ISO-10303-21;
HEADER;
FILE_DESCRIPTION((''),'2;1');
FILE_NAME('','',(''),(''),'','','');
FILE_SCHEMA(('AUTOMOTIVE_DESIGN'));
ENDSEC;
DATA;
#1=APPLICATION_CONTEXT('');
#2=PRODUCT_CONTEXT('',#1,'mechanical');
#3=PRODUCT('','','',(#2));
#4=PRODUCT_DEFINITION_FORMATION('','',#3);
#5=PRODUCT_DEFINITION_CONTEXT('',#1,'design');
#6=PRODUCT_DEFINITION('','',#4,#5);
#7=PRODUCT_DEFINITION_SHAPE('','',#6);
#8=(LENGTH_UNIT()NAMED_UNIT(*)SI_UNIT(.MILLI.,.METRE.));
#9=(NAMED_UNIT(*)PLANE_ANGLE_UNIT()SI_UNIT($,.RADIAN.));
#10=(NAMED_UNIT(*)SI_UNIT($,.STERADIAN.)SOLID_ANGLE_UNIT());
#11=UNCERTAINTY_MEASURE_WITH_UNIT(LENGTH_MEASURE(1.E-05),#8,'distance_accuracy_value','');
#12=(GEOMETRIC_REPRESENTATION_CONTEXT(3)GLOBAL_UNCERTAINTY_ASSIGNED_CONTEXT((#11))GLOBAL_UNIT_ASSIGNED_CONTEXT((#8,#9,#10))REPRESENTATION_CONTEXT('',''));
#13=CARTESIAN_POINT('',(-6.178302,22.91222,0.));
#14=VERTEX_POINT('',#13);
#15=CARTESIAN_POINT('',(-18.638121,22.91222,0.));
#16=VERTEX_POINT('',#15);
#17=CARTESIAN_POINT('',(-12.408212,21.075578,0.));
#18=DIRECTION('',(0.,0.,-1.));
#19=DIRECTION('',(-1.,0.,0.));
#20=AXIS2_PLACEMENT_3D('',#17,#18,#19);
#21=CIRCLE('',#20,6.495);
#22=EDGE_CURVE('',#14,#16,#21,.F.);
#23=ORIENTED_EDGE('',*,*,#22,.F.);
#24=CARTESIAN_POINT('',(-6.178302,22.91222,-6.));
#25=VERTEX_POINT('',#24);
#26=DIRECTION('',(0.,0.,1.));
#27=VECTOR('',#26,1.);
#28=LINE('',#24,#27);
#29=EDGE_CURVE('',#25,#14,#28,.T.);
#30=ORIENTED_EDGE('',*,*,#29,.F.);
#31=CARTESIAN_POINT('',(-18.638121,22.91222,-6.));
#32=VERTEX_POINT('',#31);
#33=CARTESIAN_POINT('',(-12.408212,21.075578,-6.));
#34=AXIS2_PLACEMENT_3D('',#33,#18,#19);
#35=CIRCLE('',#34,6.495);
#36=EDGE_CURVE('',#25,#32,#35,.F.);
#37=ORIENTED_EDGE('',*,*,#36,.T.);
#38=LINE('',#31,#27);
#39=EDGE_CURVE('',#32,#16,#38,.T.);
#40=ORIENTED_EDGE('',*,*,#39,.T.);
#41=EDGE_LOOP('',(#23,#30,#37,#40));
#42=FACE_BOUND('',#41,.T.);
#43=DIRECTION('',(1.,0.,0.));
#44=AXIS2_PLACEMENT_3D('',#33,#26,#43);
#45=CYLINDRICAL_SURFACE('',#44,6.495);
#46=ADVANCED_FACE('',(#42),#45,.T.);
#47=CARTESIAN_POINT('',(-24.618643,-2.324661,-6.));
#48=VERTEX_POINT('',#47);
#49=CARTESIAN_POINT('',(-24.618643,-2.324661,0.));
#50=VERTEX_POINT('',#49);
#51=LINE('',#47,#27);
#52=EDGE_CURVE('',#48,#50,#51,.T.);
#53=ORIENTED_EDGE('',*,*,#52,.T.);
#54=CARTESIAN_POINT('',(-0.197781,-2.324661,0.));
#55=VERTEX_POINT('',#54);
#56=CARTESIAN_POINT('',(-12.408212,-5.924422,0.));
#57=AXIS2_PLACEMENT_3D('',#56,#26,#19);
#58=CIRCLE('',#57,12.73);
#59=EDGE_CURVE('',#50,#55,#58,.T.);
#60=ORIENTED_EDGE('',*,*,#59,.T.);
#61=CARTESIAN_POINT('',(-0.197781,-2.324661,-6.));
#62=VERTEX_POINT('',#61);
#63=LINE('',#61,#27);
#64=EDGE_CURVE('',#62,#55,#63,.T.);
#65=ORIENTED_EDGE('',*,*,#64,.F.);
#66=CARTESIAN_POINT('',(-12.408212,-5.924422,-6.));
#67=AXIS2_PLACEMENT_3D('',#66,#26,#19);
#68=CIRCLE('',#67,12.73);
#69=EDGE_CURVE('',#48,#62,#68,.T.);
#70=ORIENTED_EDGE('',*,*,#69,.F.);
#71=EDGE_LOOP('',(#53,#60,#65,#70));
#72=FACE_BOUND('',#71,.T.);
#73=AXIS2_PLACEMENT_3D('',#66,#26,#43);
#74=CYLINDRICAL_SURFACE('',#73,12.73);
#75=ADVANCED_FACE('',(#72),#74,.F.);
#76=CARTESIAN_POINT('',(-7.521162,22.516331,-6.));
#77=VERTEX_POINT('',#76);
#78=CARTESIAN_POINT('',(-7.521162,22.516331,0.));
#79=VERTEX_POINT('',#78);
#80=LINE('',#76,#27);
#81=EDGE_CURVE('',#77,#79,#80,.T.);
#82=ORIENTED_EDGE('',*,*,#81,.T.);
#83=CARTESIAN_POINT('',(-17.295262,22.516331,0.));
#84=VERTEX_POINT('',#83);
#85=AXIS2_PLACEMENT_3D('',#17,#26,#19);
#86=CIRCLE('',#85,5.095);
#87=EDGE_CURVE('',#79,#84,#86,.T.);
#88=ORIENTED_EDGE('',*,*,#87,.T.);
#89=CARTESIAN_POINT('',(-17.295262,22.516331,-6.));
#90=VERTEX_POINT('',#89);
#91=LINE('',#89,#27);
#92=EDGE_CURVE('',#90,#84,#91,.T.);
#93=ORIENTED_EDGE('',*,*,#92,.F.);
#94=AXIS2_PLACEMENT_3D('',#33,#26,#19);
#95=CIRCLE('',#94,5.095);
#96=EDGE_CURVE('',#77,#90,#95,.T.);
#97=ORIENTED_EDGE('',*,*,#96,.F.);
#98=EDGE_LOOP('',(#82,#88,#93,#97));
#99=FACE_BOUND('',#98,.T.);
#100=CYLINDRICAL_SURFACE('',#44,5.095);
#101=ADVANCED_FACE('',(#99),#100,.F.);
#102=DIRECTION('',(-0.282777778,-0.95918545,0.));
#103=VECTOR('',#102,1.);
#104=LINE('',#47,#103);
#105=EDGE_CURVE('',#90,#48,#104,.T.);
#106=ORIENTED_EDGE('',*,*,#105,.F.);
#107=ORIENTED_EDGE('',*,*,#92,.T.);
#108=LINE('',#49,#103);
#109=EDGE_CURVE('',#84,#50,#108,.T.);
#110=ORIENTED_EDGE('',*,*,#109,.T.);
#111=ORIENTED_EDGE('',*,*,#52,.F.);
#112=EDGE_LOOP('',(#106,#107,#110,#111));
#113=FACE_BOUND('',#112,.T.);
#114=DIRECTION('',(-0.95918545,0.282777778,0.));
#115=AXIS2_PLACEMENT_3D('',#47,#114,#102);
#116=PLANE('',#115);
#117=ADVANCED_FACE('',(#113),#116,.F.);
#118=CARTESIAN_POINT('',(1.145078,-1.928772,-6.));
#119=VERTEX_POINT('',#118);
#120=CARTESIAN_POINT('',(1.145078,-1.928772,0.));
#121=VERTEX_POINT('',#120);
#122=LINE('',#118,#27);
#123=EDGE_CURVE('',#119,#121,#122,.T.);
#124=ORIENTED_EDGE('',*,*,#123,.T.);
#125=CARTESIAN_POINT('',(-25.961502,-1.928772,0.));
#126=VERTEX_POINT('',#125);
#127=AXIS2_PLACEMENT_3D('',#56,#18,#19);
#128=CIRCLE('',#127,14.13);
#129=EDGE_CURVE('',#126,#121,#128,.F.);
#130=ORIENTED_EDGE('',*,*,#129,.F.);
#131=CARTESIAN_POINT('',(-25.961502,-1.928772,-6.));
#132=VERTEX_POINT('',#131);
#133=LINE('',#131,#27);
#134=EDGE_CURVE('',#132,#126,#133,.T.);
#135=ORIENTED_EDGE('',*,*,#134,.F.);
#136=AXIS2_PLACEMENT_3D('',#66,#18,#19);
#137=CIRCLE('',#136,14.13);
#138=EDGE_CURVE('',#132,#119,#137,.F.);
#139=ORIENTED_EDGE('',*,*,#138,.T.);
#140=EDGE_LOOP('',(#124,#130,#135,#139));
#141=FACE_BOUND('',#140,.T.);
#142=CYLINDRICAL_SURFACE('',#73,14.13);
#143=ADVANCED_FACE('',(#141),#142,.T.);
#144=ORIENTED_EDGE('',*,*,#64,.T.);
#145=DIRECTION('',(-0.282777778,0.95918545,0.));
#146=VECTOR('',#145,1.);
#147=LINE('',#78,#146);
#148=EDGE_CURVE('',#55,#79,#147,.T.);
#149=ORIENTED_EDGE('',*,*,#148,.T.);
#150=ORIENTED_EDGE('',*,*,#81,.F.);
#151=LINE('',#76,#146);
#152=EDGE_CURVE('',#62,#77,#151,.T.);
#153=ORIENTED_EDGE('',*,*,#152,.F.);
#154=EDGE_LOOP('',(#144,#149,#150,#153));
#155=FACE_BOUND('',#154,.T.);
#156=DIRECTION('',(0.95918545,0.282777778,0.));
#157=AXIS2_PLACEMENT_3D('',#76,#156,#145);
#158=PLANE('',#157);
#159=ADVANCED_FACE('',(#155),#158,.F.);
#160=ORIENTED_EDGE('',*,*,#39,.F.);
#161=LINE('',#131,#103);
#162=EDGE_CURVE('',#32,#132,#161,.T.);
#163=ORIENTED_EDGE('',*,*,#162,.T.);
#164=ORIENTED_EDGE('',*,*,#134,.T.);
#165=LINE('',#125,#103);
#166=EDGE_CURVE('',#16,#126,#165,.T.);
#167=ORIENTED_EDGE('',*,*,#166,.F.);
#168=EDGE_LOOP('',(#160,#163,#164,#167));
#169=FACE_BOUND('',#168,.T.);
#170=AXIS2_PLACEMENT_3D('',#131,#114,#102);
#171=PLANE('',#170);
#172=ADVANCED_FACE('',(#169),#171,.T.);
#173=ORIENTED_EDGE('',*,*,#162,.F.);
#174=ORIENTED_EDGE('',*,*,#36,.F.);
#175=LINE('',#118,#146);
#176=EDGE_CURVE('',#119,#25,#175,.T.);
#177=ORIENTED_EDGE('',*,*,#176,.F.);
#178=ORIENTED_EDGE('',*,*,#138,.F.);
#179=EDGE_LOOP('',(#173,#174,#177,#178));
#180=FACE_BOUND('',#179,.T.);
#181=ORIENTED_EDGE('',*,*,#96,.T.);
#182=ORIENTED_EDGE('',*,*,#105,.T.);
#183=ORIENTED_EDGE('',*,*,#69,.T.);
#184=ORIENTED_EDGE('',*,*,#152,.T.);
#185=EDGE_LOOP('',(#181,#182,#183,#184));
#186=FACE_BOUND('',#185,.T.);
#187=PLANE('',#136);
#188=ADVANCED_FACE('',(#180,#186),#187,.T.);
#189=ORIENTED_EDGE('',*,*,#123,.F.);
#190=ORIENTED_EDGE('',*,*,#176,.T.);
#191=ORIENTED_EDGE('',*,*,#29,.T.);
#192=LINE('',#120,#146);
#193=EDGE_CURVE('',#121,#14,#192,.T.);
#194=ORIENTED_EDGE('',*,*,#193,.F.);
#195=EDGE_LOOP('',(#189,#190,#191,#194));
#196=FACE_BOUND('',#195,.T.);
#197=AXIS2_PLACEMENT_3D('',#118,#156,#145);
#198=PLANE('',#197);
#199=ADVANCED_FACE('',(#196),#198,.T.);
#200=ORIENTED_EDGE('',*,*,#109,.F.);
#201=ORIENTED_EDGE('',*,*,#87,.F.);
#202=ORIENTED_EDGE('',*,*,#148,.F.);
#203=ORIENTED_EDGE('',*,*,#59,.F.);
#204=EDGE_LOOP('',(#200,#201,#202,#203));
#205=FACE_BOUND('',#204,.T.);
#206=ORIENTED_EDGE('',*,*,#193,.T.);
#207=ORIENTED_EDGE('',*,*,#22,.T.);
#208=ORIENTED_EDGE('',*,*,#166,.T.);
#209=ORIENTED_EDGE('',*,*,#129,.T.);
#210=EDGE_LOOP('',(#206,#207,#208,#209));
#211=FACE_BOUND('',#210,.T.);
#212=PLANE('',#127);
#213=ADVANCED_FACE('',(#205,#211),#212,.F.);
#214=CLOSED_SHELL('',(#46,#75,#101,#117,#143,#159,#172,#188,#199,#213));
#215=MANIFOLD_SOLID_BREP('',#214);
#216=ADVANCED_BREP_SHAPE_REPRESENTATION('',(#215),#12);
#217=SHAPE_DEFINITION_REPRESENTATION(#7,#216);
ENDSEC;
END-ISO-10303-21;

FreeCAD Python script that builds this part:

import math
import FreeCAD as App
import Part
import Sketcher
Q = App.Units.Quantity

doc = App.newDocument("Part")
body = doc.addObject("PartDesign::Body", "Body")

# Sketch on XY plane
sketch1 = body.newObject("Sketcher::SketchObject", "Sketch")
sketch1.AttachmentSupport = (doc.getObject("XY_Plane"), [""])
sketch1.MapMode = "FlatFace"
sketch1.addGeometry(Part.LineSegment(App.Vector(1, -2, 0), App.Vector(-6, 23, 0)), False)
sketch1.addGeometry(Part.ArcOfCircle(Part.Circle(App.Vector(-12, 21, 0), App.Vector(0, 0, 1), 6), math.radians(16), math.radians(164)), False)
sketch1.addGeometry(Part.LineSegment(App.Vector(-19, 23, 0), App.Vector(-26, -2, 0)), False)
sketch1.addGeometry(Part.ArcOfCircle(Part.Circle(App.Vector(-12, -6, 0), App.Vector(0, 0, 1), 14), math.radians(164), math.radians(376)), False)
sketch1.addGeometry(Part.LineSegment(App.Vector(-8, 23, 0), App.Vector(0, -2, 0)), False)
sketch1.addGeometry(Part.ArcOfCircle(Part.Circle(App.Vector(-12, -6, 0), App.Vector(0, 0, 1), 13), math.radians(164), math.radians(376)), False)
sketch1.addGeometry(Part.LineSegment(App.Vector(-25, -2, 0), App.Vector(-17, 23, 0)), False)
sketch1.addGeometry(Part.ArcOfCircle(Part.Circle(App.Vector(-12, 21, 0), App.Vector(0, 0, 1), 5), math.radians(16), math.radians(164)), False)
sketch1.addConstraint(Sketcher.Constraint("Tangent", 0, 2, 1, 1))
sketch1.addConstraint(Sketcher.Constraint("Tangent", 1, 2, 2, 1))
sketch1.addConstraint(Sketcher.Constraint("Tangent", 2, 2, 3, 1))
sketch1.addConstraint(Sketcher.Constraint("Tangent", 3, 2, 0, 1))
sketch1.addConstraint(Sketcher.Constraint("Tangent", 4, 2, 5, 2))
sketch1.addConstraint(Sketcher.Constraint("Tangent", 5, 1, 6, 1))
sketch1.addConstraint(Sketcher.Constraint("Tangent", 6, 2, 7, 2))
sketch1.addConstraint(Sketcher.Constraint("Tangent", 7, 1, 4, 1))
sketch1.addConstraint(Sketcher.Constraint("Coincident", 5, 3, 3, 3))
sketch1.addConstraint(Sketcher.Constraint("Coincident", 7, 3, 1, 3))
sketch1.addConstraint(Sketcher.Constraint("Parallel", 0, 4))
sketch1.addConstraint(Sketcher.Constraint("Horizontal", 0, 2, 1, 2))
sketch1.addConstraint(Sketcher.Constraint("Radius", 3, Q("14.13 mm")))
sketch1.addConstraint(Sketcher.Constraint("Radius", 5, Q("12.73 mm")))
sketch1.addConstraint(Sketcher.Constraint("Radius", 1, Q("6.495 mm")))
sketch1.addConstraint(Sketcher.Constraint("DistanceY", 3, 3, 1, 3, Q("27 mm")))
sketch1.addConstraint(Sketcher.Constraint("DistanceX", 1, 3, -1, 1, Q("12.408212 mm")))
sketch1.addConstraint(Sketcher.Constraint("DistanceY", -1, 1, 1, 3, Q("21.075578 mm")))
pad1 = body.newObject("PartDesign::Pad", "Pad")
pad1.Profile = sketch1
pad1.Length = 6
pad1.Reversed = True

doc.recompute()
